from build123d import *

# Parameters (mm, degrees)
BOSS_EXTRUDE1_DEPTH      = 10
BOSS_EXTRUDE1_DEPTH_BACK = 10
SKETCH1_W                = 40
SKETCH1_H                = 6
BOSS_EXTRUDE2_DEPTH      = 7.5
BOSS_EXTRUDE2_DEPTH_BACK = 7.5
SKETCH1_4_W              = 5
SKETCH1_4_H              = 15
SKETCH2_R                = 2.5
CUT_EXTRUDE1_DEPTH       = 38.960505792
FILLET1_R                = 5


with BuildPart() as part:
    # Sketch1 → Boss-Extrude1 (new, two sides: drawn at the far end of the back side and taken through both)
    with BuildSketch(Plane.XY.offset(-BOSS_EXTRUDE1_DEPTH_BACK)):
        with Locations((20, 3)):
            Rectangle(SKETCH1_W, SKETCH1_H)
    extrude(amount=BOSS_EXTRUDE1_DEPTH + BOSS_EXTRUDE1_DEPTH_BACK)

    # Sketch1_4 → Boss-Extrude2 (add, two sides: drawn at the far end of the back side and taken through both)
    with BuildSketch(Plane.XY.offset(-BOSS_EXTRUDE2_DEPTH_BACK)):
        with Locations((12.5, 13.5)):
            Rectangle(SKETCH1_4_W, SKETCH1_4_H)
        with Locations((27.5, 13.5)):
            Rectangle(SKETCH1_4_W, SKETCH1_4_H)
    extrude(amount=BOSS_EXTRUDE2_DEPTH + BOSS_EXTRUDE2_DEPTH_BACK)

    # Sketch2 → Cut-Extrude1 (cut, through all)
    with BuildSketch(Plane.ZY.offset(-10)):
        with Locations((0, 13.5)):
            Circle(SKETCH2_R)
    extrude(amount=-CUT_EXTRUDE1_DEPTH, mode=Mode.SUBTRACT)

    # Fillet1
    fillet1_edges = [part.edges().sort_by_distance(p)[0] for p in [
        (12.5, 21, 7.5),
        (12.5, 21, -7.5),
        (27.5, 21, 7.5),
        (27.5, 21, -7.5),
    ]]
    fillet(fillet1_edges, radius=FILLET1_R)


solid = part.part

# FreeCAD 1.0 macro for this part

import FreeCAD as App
import Part
import Sketcher


def edges_at(feature, points):
    """Names of the edges that pass closest to the given points."""
    edges = feature.Shape.Edges
    near = lambda p: min(range(len(edges)), key=lambda i: edges[i].distToShape(Part.Vertex(*p))[0])
    return sorted({f"Edge{near(p) + 1}" for p in points})


def add_polygon(sketch, points):
    """Adds a closed chain of lines whose ends are joined by coincident constraints."""
    first, n = sketch.GeometryCount, len(points)
    for a, b in zip(points, points[1:] + points[:1]):
        sketch.addGeometry(Part.LineSegment(App.Vector(*a, 0), App.Vector(*b, 0)), False)
    for i in range(n):
        sketch.addConstraint(Sketcher.Constraint("Coincident", first + i, 2, first + (i + 1) % n, 1))

doc = App.newDocument("Part")
params = doc.addObject("Spreadsheet::Sheet", "Params")
for row, (alias, value) in enumerate([
    ("sketch1_width", "40 mm"),
    ("sketch1_height", "6 mm"),
    ("pad1_length", "10 mm"),
    ("pad1_length2", "10 mm"),
    ("sketch2_width", "5 mm"),
    ("sketch2_height", "15 mm"),
    ("pad2_length", "7.5 mm"),
    ("pad2_length2", "7.5 mm"),
    ("sketch3_diameter", "5 mm"),
    ("fillet_radius", "5 mm"),
], start=1):
    params.set(f"A{row}", alias)
    params.set(f"B{row}", "=" + value)
    params.setAlias(f"B{row}", alias)

body = doc.addObject("PartDesign::Body", "Body")

# Sketch on XY plane
sketch1 = doc.addObject("Sketcher::SketchObject", "Sketch")
body.addObject(sketch1)
sketch1.AttachmentSupport = (doc.XY_Plane, [""])
sketch1.MapMode = "FlatFace"
add_polygon(sketch1, [(0, 6), (0, 0), (40, 0), (40, 6)])  # lines 0-3
sketch1.addConstraint([
    Sketcher.Constraint("Vertical", 0),
    Sketcher.Constraint("Horizontal", 1),
    Sketcher.Constraint("Vertical", 2),
    Sketcher.Constraint("Horizontal", 3),
    Sketcher.Constraint("Coincident", 0, 2, -1, 1),
    Sketcher.Constraint("DistanceX", 1, 1, 1, 2, 40.0),
    Sketcher.Constraint("DistanceY", 0, 2, 0, 1, 6.0),
])
sketch1.setExpression("Constraints[9]", "Params.sketch1_width")
sketch1.setExpression("Constraints[10]", "Params.sketch1_height")
pad1 = doc.addObject("PartDesign::Pad", "Pad")
body.addObject(pad1)
pad1.Profile = sketch1
pad1.Type = "TwoLengths"
pad1.setExpression("Length", "Params.pad1_length")
pad1.setExpression("Length2", "Params.pad1_length2")

# Sketch on XY plane
sketch2 = doc.addObject("Sketcher::SketchObject", "Sketch001")
body.addObject(sketch2)
sketch2.AttachmentSupport = (doc.XY_Plane, [""])
sketch2.MapMode = "FlatFace"
add_polygon(sketch2, [(10, 21), (10, 6), (15, 6), (15, 21)])  # lines 0-3
add_polygon(sketch2, [(25, 21), (25, 6), (30, 6), (30, 21)])  # lines 4-7
sketch2.addConstraint([
    Sketcher.Constraint("Vertical", 0),
    Sketcher.Constraint("Horizontal", 1),
    Sketcher.Constraint("Vertical", 2),
    Sketcher.Constraint("Horizontal", 3),
    Sketcher.Constraint("Vertical", 4),
    Sketcher.Constraint("Horizontal", 5),
    Sketcher.Constraint("Vertical", 6),
    Sketcher.Constraint("Horizontal", 7),
    Sketcher.Constraint("Horizontal", 1, 2, 4, 2),
    Sketcher.Constraint("Horizontal", 3, 2, 6, 2),
    Sketcher.Constraint("Equal", 3, 5),
    Sketcher.Constraint("DistanceX", 1, 1, 1, 2, 5.0),
    Sketcher.Constraint("DistanceY", 0, 2, 0, 1, 15.0),
    Sketcher.Constraint("DistanceX", -1, 1, 0, 2, 10.0),
    Sketcher.Constraint("DistanceY", -1, 1, 0, 2, 6.0),
    Sketcher.Constraint("DistanceX", -1, 1, 4, 2, 25.0),
])
sketch2.setExpression("Constraints[19]", "Params.sketch2_width")
sketch2.setExpression("Constraints[20]", "Params.sketch2_height")
pad2 = doc.addObject("PartDesign::Pad", "Pad001")
body.addObject(pad2)
pad2.Profile = sketch2
pad2.Type = "TwoLengths"
pad2.setExpression("Length", "Params.pad2_length")
pad2.setExpression("Length2", "Params.pad2_length2")

# Sketch on YZ plane
sketch3 = doc.addObject("Sketcher::SketchObject", "Sketch002")
body.addObject(sketch3)
sketch3.AttachmentSupport = (doc.YZ_Plane, [""])
sketch3.MapMode = "FlatFace"
sketch3.AttachmentOffset = App.Placement(App.Vector(0, 0, 10), App.Rotation())
sketch3.addGeometry(Part.Circle(App.Vector(13.5, 0, 0), App.Vector(0, 0, 1), 2.5), False)
sketch3.addConstraint([
    Sketcher.Constraint("PointOnObject", 0, 3, -1),
    Sketcher.Constraint("Diameter", 0, 5.0),
    Sketcher.Constraint("DistanceX", -1, 1, 0, 3, 13.5),
])
sketch3.setExpression("Constraints[1]", "Params.sketch3_diameter")
pocket1 = doc.addObject("PartDesign::Pocket", "Pocket")
body.addObject(pocket1)
pocket1.Profile = sketch3
pocket1.Type = "ThroughAll"
pocket1.Reversed = True
doc.recompute()

fillet = doc.addObject("PartDesign::Fillet", "Fillet")
body.addObject(fillet)
fillet.Base = (pocket1, edges_at(pocket1, [
    (12.5, 21, 7.5),
    (12.5, 21, -7.5),
    (27.5, 21, 7.5),
    (27.5, 21, -7.5),
]))
fillet.setExpression("Radius", "Params.fillet_radius")

doc.recompute()
